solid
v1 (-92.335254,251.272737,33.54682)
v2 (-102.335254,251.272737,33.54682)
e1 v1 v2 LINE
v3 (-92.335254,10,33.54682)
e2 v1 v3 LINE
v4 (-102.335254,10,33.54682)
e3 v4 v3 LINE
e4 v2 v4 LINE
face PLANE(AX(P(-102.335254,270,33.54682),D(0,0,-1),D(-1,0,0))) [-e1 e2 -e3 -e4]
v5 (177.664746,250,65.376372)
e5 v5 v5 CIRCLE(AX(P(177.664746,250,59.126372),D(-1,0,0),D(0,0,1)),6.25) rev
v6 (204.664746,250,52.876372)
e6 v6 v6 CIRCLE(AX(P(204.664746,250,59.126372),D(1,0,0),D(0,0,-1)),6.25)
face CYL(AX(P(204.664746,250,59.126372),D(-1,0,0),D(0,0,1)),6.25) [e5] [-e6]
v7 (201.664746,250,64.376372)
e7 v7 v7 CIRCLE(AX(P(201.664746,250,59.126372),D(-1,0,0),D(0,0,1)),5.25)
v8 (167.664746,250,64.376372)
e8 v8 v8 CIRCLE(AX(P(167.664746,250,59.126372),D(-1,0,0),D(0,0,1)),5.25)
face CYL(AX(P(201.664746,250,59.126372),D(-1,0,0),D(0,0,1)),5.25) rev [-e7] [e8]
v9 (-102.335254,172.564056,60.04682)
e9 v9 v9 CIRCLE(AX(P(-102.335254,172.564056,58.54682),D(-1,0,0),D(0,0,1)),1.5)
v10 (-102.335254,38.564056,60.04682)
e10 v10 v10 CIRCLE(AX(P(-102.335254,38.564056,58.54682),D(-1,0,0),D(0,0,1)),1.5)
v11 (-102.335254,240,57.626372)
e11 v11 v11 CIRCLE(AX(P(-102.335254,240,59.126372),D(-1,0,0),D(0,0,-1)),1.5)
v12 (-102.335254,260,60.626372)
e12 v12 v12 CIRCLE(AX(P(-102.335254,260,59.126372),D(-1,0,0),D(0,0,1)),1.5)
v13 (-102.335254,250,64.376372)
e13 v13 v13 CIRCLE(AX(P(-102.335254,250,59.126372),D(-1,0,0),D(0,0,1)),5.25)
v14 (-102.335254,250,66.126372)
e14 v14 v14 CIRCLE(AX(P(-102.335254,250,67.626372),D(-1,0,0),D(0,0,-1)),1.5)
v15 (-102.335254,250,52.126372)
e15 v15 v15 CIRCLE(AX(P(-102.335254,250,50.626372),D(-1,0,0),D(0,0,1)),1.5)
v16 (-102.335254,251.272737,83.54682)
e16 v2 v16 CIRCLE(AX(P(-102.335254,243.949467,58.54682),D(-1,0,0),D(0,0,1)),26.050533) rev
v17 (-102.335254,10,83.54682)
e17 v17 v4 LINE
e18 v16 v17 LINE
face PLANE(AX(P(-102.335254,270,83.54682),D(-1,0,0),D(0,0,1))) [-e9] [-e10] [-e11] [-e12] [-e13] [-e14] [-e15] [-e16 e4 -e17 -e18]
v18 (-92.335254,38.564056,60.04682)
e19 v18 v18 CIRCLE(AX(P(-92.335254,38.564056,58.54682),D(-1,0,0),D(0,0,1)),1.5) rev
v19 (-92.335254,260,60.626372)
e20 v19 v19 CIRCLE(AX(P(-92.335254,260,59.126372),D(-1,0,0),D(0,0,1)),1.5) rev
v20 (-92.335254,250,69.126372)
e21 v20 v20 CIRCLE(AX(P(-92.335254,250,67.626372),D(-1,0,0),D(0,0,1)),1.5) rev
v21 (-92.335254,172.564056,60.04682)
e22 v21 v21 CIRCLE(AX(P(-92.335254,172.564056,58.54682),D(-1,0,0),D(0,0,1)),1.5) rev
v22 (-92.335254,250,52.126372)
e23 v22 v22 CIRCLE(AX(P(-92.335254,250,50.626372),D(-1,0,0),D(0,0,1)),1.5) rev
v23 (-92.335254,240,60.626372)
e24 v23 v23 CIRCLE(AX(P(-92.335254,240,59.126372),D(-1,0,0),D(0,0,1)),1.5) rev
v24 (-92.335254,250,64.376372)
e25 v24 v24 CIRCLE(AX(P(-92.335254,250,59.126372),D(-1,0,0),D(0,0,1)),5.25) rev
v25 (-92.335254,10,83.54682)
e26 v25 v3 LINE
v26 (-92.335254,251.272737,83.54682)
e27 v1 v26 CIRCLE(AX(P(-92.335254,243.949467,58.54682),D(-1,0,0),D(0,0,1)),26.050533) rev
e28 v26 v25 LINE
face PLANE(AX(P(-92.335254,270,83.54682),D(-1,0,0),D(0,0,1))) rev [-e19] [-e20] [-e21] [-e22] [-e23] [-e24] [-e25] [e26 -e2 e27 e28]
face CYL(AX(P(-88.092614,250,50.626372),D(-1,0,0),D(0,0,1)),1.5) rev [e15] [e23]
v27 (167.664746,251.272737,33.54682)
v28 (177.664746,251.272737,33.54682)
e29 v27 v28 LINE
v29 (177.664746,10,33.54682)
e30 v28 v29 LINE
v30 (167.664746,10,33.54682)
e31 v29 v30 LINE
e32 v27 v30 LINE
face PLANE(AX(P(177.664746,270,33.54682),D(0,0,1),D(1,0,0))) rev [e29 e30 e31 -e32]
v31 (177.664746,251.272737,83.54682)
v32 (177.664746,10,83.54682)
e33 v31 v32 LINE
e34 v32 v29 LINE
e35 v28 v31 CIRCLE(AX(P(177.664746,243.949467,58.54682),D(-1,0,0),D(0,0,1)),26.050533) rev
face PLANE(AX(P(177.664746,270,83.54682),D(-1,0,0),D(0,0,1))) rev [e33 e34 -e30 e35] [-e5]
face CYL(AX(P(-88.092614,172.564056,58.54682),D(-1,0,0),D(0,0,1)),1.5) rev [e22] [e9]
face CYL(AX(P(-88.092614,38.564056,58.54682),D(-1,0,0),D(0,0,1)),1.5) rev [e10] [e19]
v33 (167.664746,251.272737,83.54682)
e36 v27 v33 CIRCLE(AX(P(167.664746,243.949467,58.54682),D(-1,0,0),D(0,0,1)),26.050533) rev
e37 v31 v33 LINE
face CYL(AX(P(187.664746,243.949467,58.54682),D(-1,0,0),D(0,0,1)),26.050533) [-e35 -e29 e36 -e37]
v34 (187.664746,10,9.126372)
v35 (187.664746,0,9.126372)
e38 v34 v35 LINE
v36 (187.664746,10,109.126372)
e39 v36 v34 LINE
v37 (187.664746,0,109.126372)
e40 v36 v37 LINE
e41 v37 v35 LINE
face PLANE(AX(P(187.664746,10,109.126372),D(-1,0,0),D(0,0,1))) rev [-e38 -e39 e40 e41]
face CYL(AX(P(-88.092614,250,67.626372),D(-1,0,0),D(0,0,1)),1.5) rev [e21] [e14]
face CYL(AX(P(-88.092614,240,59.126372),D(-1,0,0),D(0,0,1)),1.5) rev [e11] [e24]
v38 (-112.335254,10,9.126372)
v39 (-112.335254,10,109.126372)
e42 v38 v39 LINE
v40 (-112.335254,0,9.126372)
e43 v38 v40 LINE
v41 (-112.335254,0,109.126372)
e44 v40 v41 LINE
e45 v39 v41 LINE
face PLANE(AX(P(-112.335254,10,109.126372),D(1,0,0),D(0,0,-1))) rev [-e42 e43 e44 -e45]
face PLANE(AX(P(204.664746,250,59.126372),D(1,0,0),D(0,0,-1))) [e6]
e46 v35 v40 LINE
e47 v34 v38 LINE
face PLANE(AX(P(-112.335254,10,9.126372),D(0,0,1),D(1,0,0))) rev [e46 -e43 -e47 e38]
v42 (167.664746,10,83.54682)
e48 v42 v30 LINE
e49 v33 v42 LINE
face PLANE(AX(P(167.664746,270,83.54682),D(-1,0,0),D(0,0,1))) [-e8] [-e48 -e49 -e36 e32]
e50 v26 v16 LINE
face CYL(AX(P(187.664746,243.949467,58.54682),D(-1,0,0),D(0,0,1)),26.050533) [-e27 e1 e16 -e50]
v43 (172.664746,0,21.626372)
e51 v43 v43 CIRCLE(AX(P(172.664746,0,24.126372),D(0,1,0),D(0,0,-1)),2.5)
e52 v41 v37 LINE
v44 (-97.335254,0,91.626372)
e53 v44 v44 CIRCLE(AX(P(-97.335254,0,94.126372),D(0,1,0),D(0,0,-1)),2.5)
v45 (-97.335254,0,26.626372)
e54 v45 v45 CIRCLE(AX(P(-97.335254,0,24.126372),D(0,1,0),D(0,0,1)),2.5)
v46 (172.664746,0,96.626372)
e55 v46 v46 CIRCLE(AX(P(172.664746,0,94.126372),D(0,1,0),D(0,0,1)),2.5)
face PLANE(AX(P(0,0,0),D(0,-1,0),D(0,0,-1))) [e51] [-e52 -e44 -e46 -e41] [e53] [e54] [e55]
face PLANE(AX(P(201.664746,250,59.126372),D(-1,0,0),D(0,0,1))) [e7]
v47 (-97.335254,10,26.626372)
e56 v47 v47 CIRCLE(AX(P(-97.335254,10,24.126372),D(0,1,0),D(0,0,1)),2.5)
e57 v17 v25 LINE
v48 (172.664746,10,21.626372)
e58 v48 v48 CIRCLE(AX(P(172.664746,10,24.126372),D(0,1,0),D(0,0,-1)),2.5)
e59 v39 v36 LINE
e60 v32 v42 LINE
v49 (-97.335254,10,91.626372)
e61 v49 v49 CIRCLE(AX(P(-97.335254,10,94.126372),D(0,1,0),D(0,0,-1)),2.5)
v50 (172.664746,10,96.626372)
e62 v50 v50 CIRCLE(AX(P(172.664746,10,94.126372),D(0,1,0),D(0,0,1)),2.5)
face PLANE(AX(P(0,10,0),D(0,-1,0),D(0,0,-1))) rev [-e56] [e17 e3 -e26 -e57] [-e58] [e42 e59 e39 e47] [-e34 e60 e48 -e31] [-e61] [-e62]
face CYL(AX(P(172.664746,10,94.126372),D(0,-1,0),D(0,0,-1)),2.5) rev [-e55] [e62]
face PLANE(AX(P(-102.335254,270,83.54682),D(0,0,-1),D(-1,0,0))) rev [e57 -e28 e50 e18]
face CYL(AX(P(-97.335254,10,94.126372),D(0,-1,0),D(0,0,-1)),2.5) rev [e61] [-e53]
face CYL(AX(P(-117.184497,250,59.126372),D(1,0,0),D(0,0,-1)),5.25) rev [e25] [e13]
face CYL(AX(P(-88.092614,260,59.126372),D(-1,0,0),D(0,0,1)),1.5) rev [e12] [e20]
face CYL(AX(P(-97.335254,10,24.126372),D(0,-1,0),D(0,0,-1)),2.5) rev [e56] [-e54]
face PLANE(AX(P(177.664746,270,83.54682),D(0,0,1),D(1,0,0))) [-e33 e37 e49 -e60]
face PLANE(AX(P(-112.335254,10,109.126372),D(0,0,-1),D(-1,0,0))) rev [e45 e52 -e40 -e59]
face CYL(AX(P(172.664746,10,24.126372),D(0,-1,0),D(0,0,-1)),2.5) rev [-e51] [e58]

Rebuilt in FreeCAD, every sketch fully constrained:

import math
import FreeCAD as App
import Part
import Sketcher

doc = App.newDocument("Part")
body = doc.addObject("PartDesign::Body", "Body")

# Sketch on XZ plane
sketch1 = doc.addObject("Sketcher::SketchObject", "Sketch")
body.addObject(sketch1)
sketch1.AttachmentSupport = (doc.XZ_Plane, [""])
sketch1.MapMode = "FlatFace"
sketch1.addGeometry([
    Part.LineSegment(App.Vector(-112.335254, 9.126372, 0), App.Vector(-112.335254, 109.126372, 0)),  # 0
    Part.LineSegment(App.Vector(-112.335254, 109.126372, 0), App.Vector(187.664746, 109.126372, 0)),  # 1
    Part.LineSegment(App.Vector(187.664746, 109.126372, 0), App.Vector(187.664746, 9.126372, 0)),  # 2
    Part.LineSegment(App.Vector(187.664746, 9.126372, 0), App.Vector(-112.335254, 9.126372, 0)),  # 3
    Part.Circle(App.Vector(-97.335254, 94.126372, 0), App.Vector(0, 0, 1), 2.5),  # 4
    Part.Circle(App.Vector(172.664746, 94.126372, 0), App.Vector(0, 0, 1), 2.5),  # 5
    Part.Circle(App.Vector(-97.335254, 24.126372, 0), App.Vector(0, 0, 1), 2.5),  # 6
    Part.Circle(App.Vector(172.664746, 24.126372, 0), App.Vector(0, 0, 1), 2.5),  # 7
], False)
sketch1.addConstraint([
    Sketcher.Constraint("Coincident", 0, 2, 1, 1),
    Sketcher.Constraint("Coincident", 1, 2, 2, 1),
    Sketcher.Constraint("Coincident", 2, 2, 3, 1),
    Sketcher.Constraint("Coincident", 3, 2, 0, 1),
    Sketcher.Constraint("Vertical", 0),
    Sketcher.Constraint("Horizontal", 1),
    Sketcher.Constraint("Vertical", 2),
    Sketcher.Constraint("Horizontal", 3),
    Sketcher.Constraint("Equal", 4, 5),
    Sketcher.Constraint("Equal", 5, 6),
    Sketcher.Constraint("Equal", 6, 7),
    Sketcher.Constraint("Horizontal", 4, 3, 5, 3),
    Sketcher.Constraint("Horizontal", 6, 3, 7, 3),
    Sketcher.Constraint("Vertical", 4, 3, 6, 3),
    Sketcher.Constraint("Vertical", 5, 3, 7, 3),
    Sketcher.Constraint("Diameter", 4, 5.0),
    Sketcher.Constraint("DistanceX", 1, 1, 1, 2, 300.0),
    Sketcher.Constraint("DistanceY", 0, 1, 0, 2, 100.0),
    Sketcher.Constraint("DistanceX", 4, 3, 5, 3, 270.0),
    Sketcher.Constraint("DistanceY", 6, 3, 4, 3, 70.0),
    Sketcher.Constraint("DistanceX", 0, 2, 4, 3, 15.0),
    Sketcher.Constraint("DistanceY", 4, 3, 0, 2, 15.0),
    Sketcher.Constraint("DistanceY", -1, 1, 4, 3, 94.126372),
    Sketcher.Constraint("DistanceX", 4, 3, -1, 1, 97.335254),
])
pad1 = doc.addObject("PartDesign::Pad", "Pad")
body.addObject(pad1)
pad1.Profile = sketch1
pad1.Length = 10
pad1.Reversed = True

# Sketch on XZ plane
sketch2 = doc.addObject("Sketcher::SketchObject", "Sketch001")
body.addObject(sketch2)
sketch2.AttachmentSupport = (doc.XZ_Plane, [""])
sketch2.MapMode = "FlatFace"
sketch2.AttachmentOffset = App.Placement(App.Vector(0, 0, -10), App.Rotation())
sketch2.addGeometry([
    Part.LineSegment(App.Vector(167.664746, 33.54682, 0), App.Vector(167.664746, 83.54682, 0)),  # 0
    Part.LineSegment(App.Vector(167.664746, 83.54682, 0), App.Vector(177.664746, 83.54682, 0)),  # 1
    Part.LineSegment(App.Vector(177.664746, 83.54682, 0), App.Vector(177.664746, 33.54682, 0)),  # 2
    Part.LineSegment(App.Vector(177.664746, 33.54682, 0), App.Vector(167.664746, 33.54682, 0)),  # 3
    Part.LineSegment(App.Vector(-102.335254, 33.54682, 0), App.Vector(-102.335254, 83.54682, 0)),  # 4
    Part.LineSegment(App.Vector(-102.335254, 83.54682, 0), App.Vector(-92.335254, 83.54682, 0)),  # 5
    Part.LineSegment(App.Vector(-92.335254, 83.54682, 0), App.Vector(-92.335254, 33.54682, 0)),  # 6
    Part.LineSegment(App.Vector(-92.335254, 33.54682, 0), App.Vector(-102.335254, 33.54682, 0)),  # 7
], False)
sketch2.addConstraint([
    Sketcher.Constraint("Coincident", 0, 2, 1, 1),
    Sketcher.Constraint("Coincident", 1, 2, 2, 1),
    Sketcher.Constraint("Coincident", 2, 2, 3, 1),
    Sketcher.Constraint("Coincident", 3, 2, 0, 1),
    Sketcher.Constraint("Coincident", 4, 2, 5, 1),
    Sketcher.Constraint("Coincident", 5, 2, 6, 1),
    Sketcher.Constraint("Coincident", 6, 2, 7, 1),
    Sketcher.Constraint("Coincident", 7, 2, 4, 1),
    Sketcher.Constraint("Vertical", 0),
    Sketcher.Constraint("Horizontal", 1),
    Sketcher.Constraint("Vertical", 2),
    Sketcher.Constraint("Horizontal", 3),
    Sketcher.Constraint("Vertical", 4),
    Sketcher.Constraint("Horizontal", 5),
    Sketcher.Constraint("Vertical", 6),
    Sketcher.Constraint("Horizontal", 7),
    Sketcher.Constraint("Horizontal", 1, 2, 4, 2),
    Sketcher.Constraint("Horizontal", 3, 2, 6, 2),
    Sketcher.Constraint("Equal", 3, 5),
    Sketcher.Constraint("DistanceX", 1, 1, 1, 2, 10.0),
    Sketcher.Constraint("DistanceY", 0, 1, 0, 2, 50.0),
    Sketcher.Constraint("DistanceX", 4, 2, 0, 2, 270.0),
    Sketcher.Constraint("DistanceY", -1, 1, 0, 2, 83.54682),
    Sketcher.Constraint("DistanceX", -1, 1, 0, 2, 167.664746),
])
pad2 = doc.addObject("PartDesign::Pad", "Pad001")
body.addObject(pad2)
pad2.Profile = sketch2
pad2.Length = 260
pad2.Reversed = True

# Sketch on YZ plane
sketch3 = doc.addObject("Sketcher::SketchObject", "Sketch002")
body.addObject(sketch3)
sketch3.AttachmentSupport = (doc.YZ_Plane, [""])
sketch3.MapMode = "FlatFace"
sketch3.AttachmentOffset = App.Placement(App.Vector(0, 0, -82.335254), App.Rotation())
sketch3.addGeometry(Part.Circle(App.Vector(250, 59.126372, 0), App.Vector(0, 0, 1), 5.25), False)
sketch3.addConstraint([
    Sketcher.Constraint("Diameter", 0, 10.5),
    Sketcher.Constraint("DistanceX", -1, 1, 0, 3, 250.0),
    Sketcher.Constraint("DistanceY", -1, 1, 0, 3, 59.126372),
])
pocket1 = doc.addObject("PartDesign::Pocket", "Pocket")
body.addObject(pocket1)
pocket1.Profile = sketch3
pocket1.Length = 20

# Sketch on YZ plane
sketch4 = doc.addObject("Sketcher::SketchObject", "Sketch003")
body.addObject(sketch4)
sketch4.AttachmentSupport = (doc.YZ_Plane, [""])
sketch4.MapMode = "FlatFace"
sketch4.AttachmentOffset = App.Placement(App.Vector(0, 0, -102.335254), App.Rotation())
sketch4.addGeometry([
    Part.LineSegment(App.Vector(270, 83.54682, 0), App.Vector(270, 58.54682, 0)),  # 0
    Part.ArcOfCircle(Part.Circle(App.Vector(243.949467, 58.54682, 0), App.Vector(0, 0, 1), 26.050533), math.radians(0), math.radians(73.673065)),  # 1
    Part.LineSegment(App.Vector(251.272737, 83.54682, 0), App.Vector(270, 83.54682, 0)),  # 2
    Part.LineSegment(App.Vector(270, 33.54682, 0), App.Vector(251.272737, 33.54682, 0)),  # 3
    Part.ArcOfCircle(Part.Circle(App.Vector(243.949467, 58.54682, 0), App.Vector(0, 0, 1), 26.050533), math.radians(-73.673065), math.radians(0)),  # 4
    Part.LineSegment(App.Vector(270, 58.54682, 0), App.Vector(270, 33.54682, 0)),  # 5
], False)
sketch4.addConstraint([
    Sketcher.Constraint("Tangent", 0, 2, 1, 1),
    Sketcher.Constraint("Coincident", 1, 2, 2, 1),
    Sketcher.Constraint("Coincident", 2, 2, 0, 1),
    Sketcher.Constraint("Coincident", 3, 2, 4, 1),
    Sketcher.Constraint("Tangent", 4, 2, 5, 1),
    Sketcher.Constraint("Coincident", 5, 2, 3, 1),
    Sketcher.Constraint("Vertical", 0),
    Sketcher.Constraint("Horizontal", 2),
    Sketcher.Constraint("Horizontal", 3),
    Sketcher.Constraint("Vertical", 5),
    Sketcher.Constraint("Coincident", 4, 3, 1, 3),
    Sketcher.Constraint("Equal", 1, 4),
    Sketcher.Constraint("Vertical", 1, 2, 3, 2),
    Sketcher.Constraint("DistanceY", 0, 2, 0, 1, 25.0),
    Sketcher.Constraint("DistanceX", -1, 1, 0, 2, 270.0),
    Sketcher.Constraint("Radius", 1, 26.050533),
    Sketcher.Constraint("DistanceY", -1, 1, 1, 3, 58.54682),
])
pocket2 = doc.addObject("PartDesign::Pocket", "Pocket001")
body.addObject(pocket2)
pocket2.Profile = sketch4
pocket2.Type = "ThroughAll"
pocket2.Midplane = True

# Sketch on YZ plane
sketch5 = doc.addObject("Sketcher::SketchObject", "Sketch004")
body.addObject(sketch5)
sketch5.AttachmentSupport = (doc.YZ_Plane, [""])
sketch5.MapMode = "FlatFace"
sketch5.AttachmentOffset = App.Placement(App.Vector(0, 0, -102.335254), App.Rotation())
sketch5.addGeometry([
    Part.Circle(App.Vector(172.564056, 58.54682, 0), App.Vector(0, 0, 1), 1.5),
    Part.Circle(App.Vector(38.564056, 58.54682, 0), App.Vector(0, 0, 1), 1.5),
], False)
sketch5.addConstraint([
    Sketcher.Constraint("Equal", 0, 1),
    Sketcher.Constraint("Horizontal", 0, 3, 1, 3),
    Sketcher.Constraint("Diameter", 0, 3.0),
    Sketcher.Constraint("DistanceX", 1, 3, 0, 3, 134.0),
    Sketcher.Constraint("DistanceY", -1, 1, 0, 3, 58.54682),
    Sketcher.Constraint("DistanceX", -1, 1, 0, 3, 172.564056),
])
pocket3 = doc.addObject("PartDesign::Pocket", "Pocket002")
body.addObject(pocket3)
pocket3.Profile = sketch5
pocket3.Length = 10
pocket3.Reversed = True

# Sketch on YZ plane
sketch6 = doc.addObject("Sketcher::SketchObject", "Sketch005")
body.addObject(sketch6)
sketch6.AttachmentSupport = (doc.YZ_Plane, [""])
sketch6.MapMode = "FlatFace"
sketch6.AttachmentOffset = App.Placement(App.Vector(0, 0, -102.335254), App.Rotation())
sketch6.addGeometry([
    Part.Circle(App.Vector(260, 59.126372, 0), App.Vector(0, 0, 1), 1.5),
    Part.Circle(App.Vector(240, 59.126372, 0), App.Vector(0, 0, 1), 1.5),
], False)
sketch6.addConstraint([
    Sketcher.Constraint("Equal", 0, 1),
    Sketcher.Constraint("Horizontal", 0, 3, 1, 3),
    Sketcher.Constraint("Diameter", 0, 3.0),
    Sketcher.Constraint("DistanceX", -1, 1, 0, 3, 260.0),
    Sketcher.Constraint("DistanceX", -1, 1, 1, 3, 240.0),
    Sketcher.Constraint("DistanceY", -1, 1, 0, 3, 59.126372),
])
pocket4 = doc.addObject("PartDesign::Pocket", "Pocket003")
body.addObject(pocket4)
pocket4.Profile = sketch6
pocket4.Length = 10
pocket4.Reversed = True

# Sketch on YZ plane
sketch7 = doc.addObject("Sketcher::SketchObject", "Sketch006")
body.addObject(sketch7)
sketch7.AttachmentSupport = (doc.YZ_Plane, [""])
sketch7.MapMode = "FlatFace"
sketch7.AttachmentOffset = App.Placement(App.Vector(0, 0, -102.335254), App.Rotation())
sketch7.addGeometry([
    Part.Circle(App.Vector(250, 50.626372, 0), App.Vector(0, 0, 1), 1.5),
    Part.Circle(App.Vector(250, 67.626372, 0), App.Vector(0, 0, 1), 1.5),
], False)
sketch7.addConstraint([
    Sketcher.Constraint("Equal", 0, 1),
    Sketcher.Constraint("Vertical", 0, 3, 1, 3),
    Sketcher.Constraint("Diameter", 0, 3.0),
    Sketcher.Constraint("DistanceX", -1, 1, 0, 3, 250.0),
    Sketcher.Constraint("DistanceY", 0, 3, 1, 3, 17.0),
    Sketcher.Constraint("DistanceY", -1, 1, 0, 3, 50.626372),
])
pocket5 = doc.addObject("PartDesign::Pocket", "Pocket004")
body.addObject(pocket5)
pocket5.Profile = sketch7
pocket5.Length = 10
pocket5.Reversed = True

# Sketch on YZ plane
sketch8 = doc.addObject("Sketcher::SketchObject", "Sketch007")
body.addObject(sketch8)
sketch8.AttachmentSupport = (doc.YZ_Plane, [""])
sketch8.MapMode = "FlatFace"
sketch8.AttachmentOffset = App.Placement(App.Vector(0, 0, 177.664746), App.Rotation())
sketch8.addGeometry(Part.Circle(App.Vector(250, 59.126372, 0), App.Vector(0, 0, 1), 6.25), False)
sketch8.addConstraint([
    Sketcher.Constraint("Diameter", 0, 12.5),
    Sketcher.Constraint("DistanceX", -1, 1, 0, 3, 250.0),
    Sketcher.Constraint("DistanceY", -1, 1, 0, 3, 59.126372),
])
pad3 = doc.addObject("PartDesign::Pad", "Pad002")
body.addObject(pad3)
pad3.Profile = sketch8
pad3.Length = 27

# Sketch on YZ plane
sketch9 = doc.addObject("Sketcher::SketchObject", "Sketch008")
body.addObject(sketch9)
sketch9.AttachmentSupport = (doc.YZ_Plane, [""])
sketch9.MapMode = "FlatFace"
sketch9.AttachmentOffset = App.Placement(App.Vector(0, 0, 201.664746), App.Rotation())
sketch9.addGeometry(Part.Circle(App.Vector(250, 59.126372, 0), App.Vector(0, 0, 1), 5.25), False)
sketch9.addConstraint([
    Sketcher.Constraint("Diameter", 0, 10.5),
    Sketcher.Constraint("DistanceX", -1, 1, 0, 3, 250.0),
    Sketcher.Constraint("DistanceY", -1, 1, 0, 3, 59.126372),
])
pocket6 = doc.addObject("PartDesign::Pocket", "Pocket005")
body.addObject(pocket6)
pocket6.Profile = sketch9
pocket6.Length = 34

doc.recompute()
